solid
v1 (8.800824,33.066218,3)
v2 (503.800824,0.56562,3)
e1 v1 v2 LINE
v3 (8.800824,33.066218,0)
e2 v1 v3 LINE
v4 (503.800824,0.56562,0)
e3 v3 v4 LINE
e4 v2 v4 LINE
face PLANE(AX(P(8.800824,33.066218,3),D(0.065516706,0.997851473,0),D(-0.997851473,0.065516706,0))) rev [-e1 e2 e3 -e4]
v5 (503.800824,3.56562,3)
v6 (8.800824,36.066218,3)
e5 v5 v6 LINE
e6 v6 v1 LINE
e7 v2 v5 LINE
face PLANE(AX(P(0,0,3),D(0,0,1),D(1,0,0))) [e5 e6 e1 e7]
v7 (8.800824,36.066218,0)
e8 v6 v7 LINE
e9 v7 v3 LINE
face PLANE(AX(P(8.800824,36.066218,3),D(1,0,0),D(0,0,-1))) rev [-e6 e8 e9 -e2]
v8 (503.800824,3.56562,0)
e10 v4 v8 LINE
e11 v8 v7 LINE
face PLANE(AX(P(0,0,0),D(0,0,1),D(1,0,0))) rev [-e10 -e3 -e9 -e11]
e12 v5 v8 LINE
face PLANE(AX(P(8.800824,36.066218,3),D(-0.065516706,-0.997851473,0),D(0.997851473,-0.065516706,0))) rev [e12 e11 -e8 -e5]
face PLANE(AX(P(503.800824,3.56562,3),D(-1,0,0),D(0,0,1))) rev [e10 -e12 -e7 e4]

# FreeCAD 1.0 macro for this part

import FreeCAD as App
import Part
import Sketcher

V = App.Vector
Q = App.Units.Quantity


def add_polygon(sketch, points):
    """Adds a closed chain of lines whose ends are joined by coincident constraints."""
    first, n = sketch.GeometryCount, len(points)
    for a, b in zip(points, points[1:] + points[:1]):
        sketch.addGeometry(Part.LineSegment(App.Vector(*a, 0), App.Vector(*b, 0)), False)
    for i in range(n):
        sketch.addConstraint(Sketcher.Constraint("Coincident", first + i, 2, first + (i + 1) % n, 1))

doc = App.newDocument("Part")
params = doc.addObject("Spreadsheet::Sheet", "Params")
for row, (alias, value) in enumerate([
    ("sketch1_height", "3 mm"),
    ("pad1_length", "3 mm"),
], start=1):
    params.set(f"A{row}", alias)
    params.set(f"B{row}", "=" + value)
    params.setAlias(f"B{row}", alias)

body = doc.addObject("PartDesign::Body", "Body")

# Sketch on XY plane
sketch1 = doc.addObject("Sketcher::SketchObject", "Sketch")
body.addObject(sketch1)
sketch1.AttachmentSupport = (doc.XY_Plane, [""])
sketch1.MapMode = "FlatFace"
add_polygon(sketch1, [(503.8, 3.6), (8.8, 36.1), (8.8, 33.1), (503.8, 0.6)])  # lines 0-3
sketch1.addConstraint(Sketcher.Constraint("Vertical", 1))
sketch1.addConstraint(Sketcher.Constraint("Vertical", 3))
sketch1.addConstraint(Sketcher.Constraint("Parallel", 0, 2))
sketch1.addConstraint(Sketcher.Constraint("DistanceY", 1, 2, 1, 1, Q("3 mm")))
sketch1.addConstraint(Sketcher.Constraint("DistanceX", 1, 2, 2, 2, Q("495 mm")))
sketch1.addConstraint(Sketcher.Constraint("Distance", 0, Q("496.065811 mm")))
sketch1.addConstraint(Sketcher.Constraint("DistanceY", -1, 1, 0, 2, Q("36.066218 mm")))
sketch1.addConstraint(Sketcher.Constraint("DistanceX", -1, 1, 0, 2, Q("8.800824 mm")))
sketch1.setExpression("Constraints[7]", "Params.sketch1_height")
pad1 = doc.addObject("PartDesign::Pad", "Pad")
body.addObject(pad1)
pad1.Profile = sketch1
pad1.setExpression("Length", "Params.pad1_length")

doc.recompute()
